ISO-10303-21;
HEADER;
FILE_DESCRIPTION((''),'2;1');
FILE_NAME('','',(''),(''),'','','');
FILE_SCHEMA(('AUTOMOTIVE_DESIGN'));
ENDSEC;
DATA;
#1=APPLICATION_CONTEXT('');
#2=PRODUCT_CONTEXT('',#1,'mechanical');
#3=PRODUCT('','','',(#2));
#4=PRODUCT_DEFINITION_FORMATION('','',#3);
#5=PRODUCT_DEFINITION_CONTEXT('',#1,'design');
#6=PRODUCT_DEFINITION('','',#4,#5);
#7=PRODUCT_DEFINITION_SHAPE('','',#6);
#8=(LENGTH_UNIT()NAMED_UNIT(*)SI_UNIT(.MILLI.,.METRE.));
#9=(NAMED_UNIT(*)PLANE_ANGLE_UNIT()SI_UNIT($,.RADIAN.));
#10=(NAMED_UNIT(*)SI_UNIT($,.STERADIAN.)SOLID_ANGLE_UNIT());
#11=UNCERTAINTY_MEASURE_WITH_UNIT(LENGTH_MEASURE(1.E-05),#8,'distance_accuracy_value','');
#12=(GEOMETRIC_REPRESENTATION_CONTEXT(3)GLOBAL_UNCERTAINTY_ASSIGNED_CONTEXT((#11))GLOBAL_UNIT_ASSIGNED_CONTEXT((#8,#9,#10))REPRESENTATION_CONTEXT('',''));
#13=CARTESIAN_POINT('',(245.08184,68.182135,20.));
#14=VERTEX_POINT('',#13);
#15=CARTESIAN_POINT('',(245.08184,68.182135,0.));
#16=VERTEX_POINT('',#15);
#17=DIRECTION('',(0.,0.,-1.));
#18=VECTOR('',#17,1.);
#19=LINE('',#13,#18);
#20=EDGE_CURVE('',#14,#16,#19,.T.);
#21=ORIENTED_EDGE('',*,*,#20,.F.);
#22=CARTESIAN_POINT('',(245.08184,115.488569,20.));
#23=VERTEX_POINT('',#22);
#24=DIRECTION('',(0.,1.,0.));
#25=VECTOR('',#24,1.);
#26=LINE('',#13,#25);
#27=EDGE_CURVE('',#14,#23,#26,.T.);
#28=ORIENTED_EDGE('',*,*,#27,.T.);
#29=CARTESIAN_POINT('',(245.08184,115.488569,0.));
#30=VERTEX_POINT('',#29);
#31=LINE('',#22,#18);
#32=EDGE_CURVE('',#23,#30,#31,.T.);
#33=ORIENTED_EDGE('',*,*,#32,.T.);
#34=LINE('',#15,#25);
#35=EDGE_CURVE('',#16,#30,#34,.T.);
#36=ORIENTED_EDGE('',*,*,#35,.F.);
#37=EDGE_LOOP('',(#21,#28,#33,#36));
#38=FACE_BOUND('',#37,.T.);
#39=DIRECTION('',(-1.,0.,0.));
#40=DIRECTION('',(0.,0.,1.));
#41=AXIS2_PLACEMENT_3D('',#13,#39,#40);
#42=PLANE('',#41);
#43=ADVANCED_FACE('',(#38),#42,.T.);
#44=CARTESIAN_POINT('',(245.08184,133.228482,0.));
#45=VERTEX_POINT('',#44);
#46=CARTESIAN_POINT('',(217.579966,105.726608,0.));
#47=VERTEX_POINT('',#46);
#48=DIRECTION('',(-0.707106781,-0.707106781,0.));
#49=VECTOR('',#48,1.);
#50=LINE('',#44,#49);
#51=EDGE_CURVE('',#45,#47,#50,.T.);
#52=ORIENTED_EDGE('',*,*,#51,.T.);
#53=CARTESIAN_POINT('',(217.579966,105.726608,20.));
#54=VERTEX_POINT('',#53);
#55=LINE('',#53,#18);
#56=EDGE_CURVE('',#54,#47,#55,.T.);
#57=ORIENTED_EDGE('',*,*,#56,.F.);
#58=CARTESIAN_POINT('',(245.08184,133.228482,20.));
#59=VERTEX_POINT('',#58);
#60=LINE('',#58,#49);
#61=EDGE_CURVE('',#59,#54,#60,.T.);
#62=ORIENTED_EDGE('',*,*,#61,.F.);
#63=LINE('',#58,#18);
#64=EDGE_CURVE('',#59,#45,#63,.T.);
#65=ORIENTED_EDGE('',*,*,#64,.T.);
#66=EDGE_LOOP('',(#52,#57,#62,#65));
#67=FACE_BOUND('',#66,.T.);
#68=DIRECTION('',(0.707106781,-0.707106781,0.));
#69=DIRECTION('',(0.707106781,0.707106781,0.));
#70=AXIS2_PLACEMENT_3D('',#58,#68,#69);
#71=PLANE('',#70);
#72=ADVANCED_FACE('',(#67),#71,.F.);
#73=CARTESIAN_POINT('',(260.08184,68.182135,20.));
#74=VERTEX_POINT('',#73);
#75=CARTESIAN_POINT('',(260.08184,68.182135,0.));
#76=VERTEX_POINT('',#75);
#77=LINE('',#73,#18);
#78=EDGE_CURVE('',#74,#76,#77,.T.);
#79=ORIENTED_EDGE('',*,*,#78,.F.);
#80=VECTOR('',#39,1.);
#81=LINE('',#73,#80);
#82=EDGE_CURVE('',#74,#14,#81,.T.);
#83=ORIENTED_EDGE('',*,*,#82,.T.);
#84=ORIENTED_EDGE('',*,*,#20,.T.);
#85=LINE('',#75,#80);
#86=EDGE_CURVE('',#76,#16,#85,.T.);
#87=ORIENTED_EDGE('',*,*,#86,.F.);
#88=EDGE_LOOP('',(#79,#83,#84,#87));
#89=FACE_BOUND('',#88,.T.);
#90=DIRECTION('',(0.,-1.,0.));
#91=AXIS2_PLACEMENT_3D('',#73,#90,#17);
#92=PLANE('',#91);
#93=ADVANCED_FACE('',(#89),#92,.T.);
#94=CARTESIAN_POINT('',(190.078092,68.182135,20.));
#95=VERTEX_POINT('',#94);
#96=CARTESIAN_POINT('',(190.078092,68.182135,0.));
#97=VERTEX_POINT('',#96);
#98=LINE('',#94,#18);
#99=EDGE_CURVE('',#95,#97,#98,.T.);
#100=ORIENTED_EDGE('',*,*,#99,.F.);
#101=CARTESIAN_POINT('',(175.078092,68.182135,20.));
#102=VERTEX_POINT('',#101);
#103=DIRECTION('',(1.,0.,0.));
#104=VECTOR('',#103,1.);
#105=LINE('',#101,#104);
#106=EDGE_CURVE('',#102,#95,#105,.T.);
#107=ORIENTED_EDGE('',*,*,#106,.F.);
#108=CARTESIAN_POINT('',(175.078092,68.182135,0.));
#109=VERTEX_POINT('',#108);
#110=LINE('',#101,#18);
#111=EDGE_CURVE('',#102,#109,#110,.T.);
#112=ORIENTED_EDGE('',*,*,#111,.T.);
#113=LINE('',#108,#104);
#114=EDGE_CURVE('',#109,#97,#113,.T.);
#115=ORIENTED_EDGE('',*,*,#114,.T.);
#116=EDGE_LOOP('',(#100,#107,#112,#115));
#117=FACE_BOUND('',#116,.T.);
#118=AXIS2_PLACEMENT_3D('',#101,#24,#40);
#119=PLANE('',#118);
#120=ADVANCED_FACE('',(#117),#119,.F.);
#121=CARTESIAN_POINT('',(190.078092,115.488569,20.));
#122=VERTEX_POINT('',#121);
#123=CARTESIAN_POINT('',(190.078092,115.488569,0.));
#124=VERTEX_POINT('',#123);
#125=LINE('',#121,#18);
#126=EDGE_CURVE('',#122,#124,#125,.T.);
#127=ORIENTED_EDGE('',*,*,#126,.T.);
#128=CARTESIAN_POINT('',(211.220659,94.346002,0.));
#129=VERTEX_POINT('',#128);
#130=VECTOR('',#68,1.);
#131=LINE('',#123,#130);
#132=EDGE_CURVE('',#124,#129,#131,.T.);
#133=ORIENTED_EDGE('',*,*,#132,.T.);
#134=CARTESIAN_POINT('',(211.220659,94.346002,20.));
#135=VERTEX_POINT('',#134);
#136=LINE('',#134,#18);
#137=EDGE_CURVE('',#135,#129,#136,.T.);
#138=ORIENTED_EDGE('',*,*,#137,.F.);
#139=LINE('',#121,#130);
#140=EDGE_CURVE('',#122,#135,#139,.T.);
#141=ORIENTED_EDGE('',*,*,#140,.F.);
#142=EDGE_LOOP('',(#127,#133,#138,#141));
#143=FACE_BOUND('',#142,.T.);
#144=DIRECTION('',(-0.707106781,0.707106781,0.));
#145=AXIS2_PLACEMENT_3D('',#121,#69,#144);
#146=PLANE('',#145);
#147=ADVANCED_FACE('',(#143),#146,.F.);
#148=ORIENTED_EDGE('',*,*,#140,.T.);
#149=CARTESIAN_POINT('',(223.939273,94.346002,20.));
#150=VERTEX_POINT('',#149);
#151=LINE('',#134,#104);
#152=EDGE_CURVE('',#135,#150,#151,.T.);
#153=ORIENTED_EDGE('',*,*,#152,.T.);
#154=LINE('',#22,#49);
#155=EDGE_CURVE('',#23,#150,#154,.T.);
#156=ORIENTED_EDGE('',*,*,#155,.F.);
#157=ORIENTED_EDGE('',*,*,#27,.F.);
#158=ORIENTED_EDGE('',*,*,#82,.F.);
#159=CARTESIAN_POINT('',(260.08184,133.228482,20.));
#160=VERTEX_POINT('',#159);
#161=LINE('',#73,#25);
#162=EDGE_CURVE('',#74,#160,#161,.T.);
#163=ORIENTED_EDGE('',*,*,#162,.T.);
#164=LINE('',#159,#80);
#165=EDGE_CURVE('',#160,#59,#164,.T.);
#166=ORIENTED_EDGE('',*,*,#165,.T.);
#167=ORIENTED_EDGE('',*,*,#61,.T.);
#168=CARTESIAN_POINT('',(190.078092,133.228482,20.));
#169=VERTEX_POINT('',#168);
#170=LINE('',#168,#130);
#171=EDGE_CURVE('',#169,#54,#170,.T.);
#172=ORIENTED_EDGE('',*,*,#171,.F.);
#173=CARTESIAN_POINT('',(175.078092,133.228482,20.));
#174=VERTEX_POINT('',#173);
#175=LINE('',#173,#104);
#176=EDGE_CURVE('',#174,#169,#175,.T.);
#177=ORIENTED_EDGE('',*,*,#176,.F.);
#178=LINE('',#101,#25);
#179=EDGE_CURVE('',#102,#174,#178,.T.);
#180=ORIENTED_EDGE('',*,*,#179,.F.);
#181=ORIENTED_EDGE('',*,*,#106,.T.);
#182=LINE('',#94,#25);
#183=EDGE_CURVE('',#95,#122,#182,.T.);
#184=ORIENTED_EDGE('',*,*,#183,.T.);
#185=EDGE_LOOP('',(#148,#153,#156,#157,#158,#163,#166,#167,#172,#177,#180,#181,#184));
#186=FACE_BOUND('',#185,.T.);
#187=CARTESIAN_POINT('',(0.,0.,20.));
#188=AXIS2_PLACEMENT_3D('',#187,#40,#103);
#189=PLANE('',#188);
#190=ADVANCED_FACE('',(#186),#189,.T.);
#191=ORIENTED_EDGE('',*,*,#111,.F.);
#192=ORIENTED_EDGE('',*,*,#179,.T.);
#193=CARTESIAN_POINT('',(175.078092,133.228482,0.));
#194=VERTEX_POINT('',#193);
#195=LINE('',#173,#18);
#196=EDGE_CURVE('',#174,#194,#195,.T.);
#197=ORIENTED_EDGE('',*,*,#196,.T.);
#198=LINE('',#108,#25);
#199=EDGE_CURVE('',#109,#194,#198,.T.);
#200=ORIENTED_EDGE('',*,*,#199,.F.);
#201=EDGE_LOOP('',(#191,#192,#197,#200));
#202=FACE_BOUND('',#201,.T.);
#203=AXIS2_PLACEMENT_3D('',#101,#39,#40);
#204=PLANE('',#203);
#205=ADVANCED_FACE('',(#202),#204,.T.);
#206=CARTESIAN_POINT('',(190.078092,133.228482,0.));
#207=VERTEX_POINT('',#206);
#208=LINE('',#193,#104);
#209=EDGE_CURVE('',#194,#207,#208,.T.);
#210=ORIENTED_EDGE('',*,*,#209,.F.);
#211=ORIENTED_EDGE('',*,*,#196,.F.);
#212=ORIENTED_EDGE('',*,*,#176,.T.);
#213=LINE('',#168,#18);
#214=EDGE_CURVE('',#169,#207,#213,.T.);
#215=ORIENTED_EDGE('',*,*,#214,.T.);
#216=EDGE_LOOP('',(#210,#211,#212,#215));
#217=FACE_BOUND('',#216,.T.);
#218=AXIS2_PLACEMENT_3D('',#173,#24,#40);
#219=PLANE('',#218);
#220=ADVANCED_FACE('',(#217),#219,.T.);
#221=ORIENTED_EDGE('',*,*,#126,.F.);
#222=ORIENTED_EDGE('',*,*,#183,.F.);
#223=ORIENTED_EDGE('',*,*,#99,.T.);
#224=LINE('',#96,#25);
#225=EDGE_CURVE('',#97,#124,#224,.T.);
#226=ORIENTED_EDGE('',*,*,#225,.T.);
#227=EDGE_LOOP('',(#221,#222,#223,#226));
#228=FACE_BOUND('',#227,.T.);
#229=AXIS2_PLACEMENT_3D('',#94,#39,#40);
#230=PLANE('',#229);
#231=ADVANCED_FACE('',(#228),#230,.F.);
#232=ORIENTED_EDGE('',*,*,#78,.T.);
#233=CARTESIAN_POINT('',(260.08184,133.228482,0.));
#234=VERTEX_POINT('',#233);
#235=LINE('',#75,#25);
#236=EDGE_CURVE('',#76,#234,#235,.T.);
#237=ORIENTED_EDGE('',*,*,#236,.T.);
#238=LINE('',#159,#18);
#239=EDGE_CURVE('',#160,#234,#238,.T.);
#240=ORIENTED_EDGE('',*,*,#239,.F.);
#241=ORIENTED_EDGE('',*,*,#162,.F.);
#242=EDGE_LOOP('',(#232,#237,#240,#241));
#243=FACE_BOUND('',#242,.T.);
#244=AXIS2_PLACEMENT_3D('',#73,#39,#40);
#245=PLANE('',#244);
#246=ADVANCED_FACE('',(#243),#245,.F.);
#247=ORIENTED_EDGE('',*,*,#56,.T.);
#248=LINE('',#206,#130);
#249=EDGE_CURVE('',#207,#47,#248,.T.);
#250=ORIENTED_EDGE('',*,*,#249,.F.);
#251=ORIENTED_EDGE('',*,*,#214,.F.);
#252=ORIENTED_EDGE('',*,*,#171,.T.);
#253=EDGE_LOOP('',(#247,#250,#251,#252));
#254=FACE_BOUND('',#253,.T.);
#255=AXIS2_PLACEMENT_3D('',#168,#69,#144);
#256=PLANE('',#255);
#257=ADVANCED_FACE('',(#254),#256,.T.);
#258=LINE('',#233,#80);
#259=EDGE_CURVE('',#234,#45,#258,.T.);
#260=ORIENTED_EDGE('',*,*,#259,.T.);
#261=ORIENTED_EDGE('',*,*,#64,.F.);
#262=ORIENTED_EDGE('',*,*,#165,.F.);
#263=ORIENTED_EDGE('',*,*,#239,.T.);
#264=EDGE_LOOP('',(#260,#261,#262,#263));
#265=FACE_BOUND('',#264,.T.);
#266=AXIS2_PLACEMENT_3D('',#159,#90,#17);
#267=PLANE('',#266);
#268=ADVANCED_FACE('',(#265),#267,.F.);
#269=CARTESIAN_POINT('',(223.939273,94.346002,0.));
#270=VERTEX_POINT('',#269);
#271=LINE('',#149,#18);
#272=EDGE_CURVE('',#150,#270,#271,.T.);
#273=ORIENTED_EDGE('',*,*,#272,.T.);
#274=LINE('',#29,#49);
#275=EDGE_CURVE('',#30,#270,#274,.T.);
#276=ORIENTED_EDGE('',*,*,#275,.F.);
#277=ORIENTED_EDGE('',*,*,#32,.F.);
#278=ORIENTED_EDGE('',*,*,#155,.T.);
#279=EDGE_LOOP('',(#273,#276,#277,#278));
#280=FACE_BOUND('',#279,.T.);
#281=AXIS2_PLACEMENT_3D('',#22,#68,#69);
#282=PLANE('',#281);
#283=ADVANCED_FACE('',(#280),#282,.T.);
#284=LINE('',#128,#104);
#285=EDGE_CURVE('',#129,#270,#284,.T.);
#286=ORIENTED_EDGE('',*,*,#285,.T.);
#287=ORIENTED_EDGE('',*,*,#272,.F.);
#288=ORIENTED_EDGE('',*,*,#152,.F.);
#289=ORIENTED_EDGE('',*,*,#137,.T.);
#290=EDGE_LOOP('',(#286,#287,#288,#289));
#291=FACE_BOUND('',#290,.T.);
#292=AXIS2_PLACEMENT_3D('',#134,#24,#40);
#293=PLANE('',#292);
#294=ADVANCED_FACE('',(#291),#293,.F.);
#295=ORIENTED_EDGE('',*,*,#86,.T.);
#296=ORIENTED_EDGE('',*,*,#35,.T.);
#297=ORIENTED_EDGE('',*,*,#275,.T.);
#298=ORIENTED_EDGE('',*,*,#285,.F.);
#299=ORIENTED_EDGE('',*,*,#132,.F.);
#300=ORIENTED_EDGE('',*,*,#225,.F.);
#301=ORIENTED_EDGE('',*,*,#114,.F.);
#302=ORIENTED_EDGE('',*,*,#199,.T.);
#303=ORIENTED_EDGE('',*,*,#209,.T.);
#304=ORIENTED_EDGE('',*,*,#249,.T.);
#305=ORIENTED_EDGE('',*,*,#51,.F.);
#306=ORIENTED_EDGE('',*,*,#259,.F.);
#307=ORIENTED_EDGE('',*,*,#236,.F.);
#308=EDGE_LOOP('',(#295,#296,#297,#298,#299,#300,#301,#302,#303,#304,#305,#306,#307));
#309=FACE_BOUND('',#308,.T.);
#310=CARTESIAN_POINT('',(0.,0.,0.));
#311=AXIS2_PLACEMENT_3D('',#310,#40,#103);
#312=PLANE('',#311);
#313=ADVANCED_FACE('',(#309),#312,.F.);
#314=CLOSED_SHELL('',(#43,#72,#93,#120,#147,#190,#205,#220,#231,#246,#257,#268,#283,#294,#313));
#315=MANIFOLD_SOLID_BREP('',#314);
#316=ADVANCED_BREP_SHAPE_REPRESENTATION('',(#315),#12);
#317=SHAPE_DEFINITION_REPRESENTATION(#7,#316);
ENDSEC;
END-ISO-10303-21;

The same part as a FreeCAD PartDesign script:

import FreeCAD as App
import Part
import Sketcher

doc = App.newDocument("Part")
params = doc.addObject("Spreadsheet::Sheet", "Params")
for row, (alias, value) in enumerate([
    ("sketch1_width", "15 mm"),
    ("pad1_length", "20 mm"),
], start=1):
    params.set(f"A{row}", alias)
    params.set(f"B{row}", "=" + value)
    params.setAlias(f"B{row}", alias)

body = doc.addObject("PartDesign::Body", "Body")

# Sketch on XY plane
sketch1 = body.newObject("Sketcher::SketchObject", "Sketch")
sketch1.AttachmentSupport = (doc.getObject("XY_Plane"), [""])
sketch1.MapMode = "FlatFace"
sketch1.addGeometry(Part.LineSegment(App.Vector(175, 133, 0), App.Vector(175, 68, 0)), False)
sketch1.addGeometry(Part.LineSegment(App.Vector(175, 68, 0), App.Vector(190, 68, 0)), False)
sketch1.addGeometry(Part.LineSegment(App.Vector(190, 68, 0), App.Vector(190, 115, 0)), False)
sketch1.addGeometry(Part.LineSegment(App.Vector(190, 115, 0), App.Vector(211, 94, 0)), False)
sketch1.addGeometry(Part.LineSegment(App.Vector(211, 94, 0), App.Vector(224, 94, 0)), False)
sketch1.addGeometry(Part.LineSegment(App.Vector(224, 94, 0), App.Vector(245, 115, 0)), False)
sketch1.addGeometry(Part.LineSegment(App.Vector(245, 115, 0), App.Vector(245, 68, 0)), False)
sketch1.addGeometry(Part.LineSegment(App.Vector(245, 68, 0), App.Vector(260, 68, 0)), False)
sketch1.addGeometry(Part.LineSegment(App.Vector(260, 68, 0), App.Vector(260, 133, 0)), False)
sketch1.addGeometry(Part.LineSegment(App.Vector(260, 133, 0), App.Vector(245, 133, 0)), False)
sketch1.addGeometry(Part.LineSegment(App.Vector(245, 133, 0), App.Vector(218, 106, 0)), False)
sketch1.addGeometry(Part.LineSegment(App.Vector(218, 106, 0), App.Vector(190, 133, 0)), False)
sketch1.addGeometry(Part.LineSegment(App.Vector(190, 133, 0), App.Vector(175, 133, 0)), False)
sketch1.addConstraint(Sketcher.Constraint("Coincident", 0, 2, 1, 1))
sketch1.addConstraint(Sketcher.Constraint("Coincident", 1, 2, 2, 1))
sketch1.addConstraint(Sketcher.Constraint("Coincident", 2, 2, 3, 1))
sketch1.addConstraint(Sketcher.Constraint("Coincident", 3, 2, 4, 1))
sketch1.addConstraint(Sketcher.Constraint("Coincident", 4, 2, 5, 1))
sketch1.addConstraint(Sketcher.Constraint("Coincident", 5, 2, 6, 1))
sketch1.addConstraint(Sketcher.Constraint("Coincident", 6, 2, 7, 1))
sketch1.addConstraint(Sketcher.Constraint("Coincident", 7, 2, 8, 1))
sketch1.addConstraint(Sketcher.Constraint("Coincident", 8, 2, 9, 1))
sketch1.addConstraint(Sketcher.Constraint("Coincident", 9, 2, 10, 1))
sketch1.addConstraint(Sketcher.Constraint("Coincident", 10, 2, 11, 1))
sketch1.addConstraint(Sketcher.Constraint("Coincident", 11, 2, 12, 1))
sketch1.addConstraint(Sketcher.Constraint("Coincident", 12, 2, 0, 1))
sketch1.addConstraint(Sketcher.Constraint("Vertical", 0))
sketch1.addConstraint(Sketcher.Constraint("Horizontal", 1))
sketch1.addConstraint(Sketcher.Constraint("Vertical", 2))
sketch1.addConstraint(Sketcher.Constraint("Horizontal", 4))
sketch1.addConstraint(Sketcher.Constraint("Vertical", 6))
sketch1.addConstraint(Sketcher.Constraint("Horizontal", 7))
sketch1.addConstraint(Sketcher.Constraint("Vertical", 8))
sketch1.addConstraint(Sketcher.Constraint("Horizontal", 9))
sketch1.addConstraint(Sketcher.Constraint("Horizontal", 12))
sketch1.addConstraint(Sketcher.Constraint("Perpendicular", 3, 5))
sketch1.addConstraint(Sketcher.Constraint("Parallel", 5, 10))
sketch1.addConstraint(Sketcher.Constraint("Perpendicular", 10, 11))
sketch1.addConstraint(Sketcher.Constraint("Horizontal", 2, 2, 5, 2))
sketch1.addConstraint(Sketcher.Constraint("Horizontal", 1, 2, 6, 2))
sketch1.addConstraint(Sketcher.Constraint("Horizontal", 9, 2, 11, 2))
sketch1.addConstraint(Sketcher.Constraint("Vertical", 6, 2, 9, 2))
sketch1.addConstraint(Sketcher.Constraint("Vertical", 2, 2, 11, 2))
sketch1.addConstraint(Sketcher.Constraint("Equal", 1, 7))
sketch1.addConstraint(Sketcher.Constraint("Equal", 3, 5))
sketch1.addConstraint(Sketcher.Constraint("DistanceX", 1, 1, 1, 2, 15.0))
sketch1.addConstraint(Sketcher.Constraint("DistanceY", -1, 1, 3, 2, 94.346002))
sketch1.addConstraint(Sketcher.Constraint("DistanceX", 4, 1, 4, 2, 12.718614))
sketch1.addConstraint(Sketcher.Constraint("DistanceY", 0, 2, 0, 1, 65.046346))
sketch1.addConstraint(Sketcher.Constraint("DistanceY", 2, 1, 2, 2, 47.306434))
sketch1.addConstraint(Sketcher.Constraint("DistanceY", -1, 1, 2, 2, 115.488569))
sketch1.addConstraint(Sketcher.Constraint("DistanceX", -1, 1, 3, 2, 211.220659))
sketch1.setExpression("Constraints[32]", "Params.sketch1_width")
pad1 = body.newObject("PartDesign::Pad", "Pad")
pad1.Profile = sketch1
pad1.setExpression("Length", "Params.pad1_length")

doc.recompute()
